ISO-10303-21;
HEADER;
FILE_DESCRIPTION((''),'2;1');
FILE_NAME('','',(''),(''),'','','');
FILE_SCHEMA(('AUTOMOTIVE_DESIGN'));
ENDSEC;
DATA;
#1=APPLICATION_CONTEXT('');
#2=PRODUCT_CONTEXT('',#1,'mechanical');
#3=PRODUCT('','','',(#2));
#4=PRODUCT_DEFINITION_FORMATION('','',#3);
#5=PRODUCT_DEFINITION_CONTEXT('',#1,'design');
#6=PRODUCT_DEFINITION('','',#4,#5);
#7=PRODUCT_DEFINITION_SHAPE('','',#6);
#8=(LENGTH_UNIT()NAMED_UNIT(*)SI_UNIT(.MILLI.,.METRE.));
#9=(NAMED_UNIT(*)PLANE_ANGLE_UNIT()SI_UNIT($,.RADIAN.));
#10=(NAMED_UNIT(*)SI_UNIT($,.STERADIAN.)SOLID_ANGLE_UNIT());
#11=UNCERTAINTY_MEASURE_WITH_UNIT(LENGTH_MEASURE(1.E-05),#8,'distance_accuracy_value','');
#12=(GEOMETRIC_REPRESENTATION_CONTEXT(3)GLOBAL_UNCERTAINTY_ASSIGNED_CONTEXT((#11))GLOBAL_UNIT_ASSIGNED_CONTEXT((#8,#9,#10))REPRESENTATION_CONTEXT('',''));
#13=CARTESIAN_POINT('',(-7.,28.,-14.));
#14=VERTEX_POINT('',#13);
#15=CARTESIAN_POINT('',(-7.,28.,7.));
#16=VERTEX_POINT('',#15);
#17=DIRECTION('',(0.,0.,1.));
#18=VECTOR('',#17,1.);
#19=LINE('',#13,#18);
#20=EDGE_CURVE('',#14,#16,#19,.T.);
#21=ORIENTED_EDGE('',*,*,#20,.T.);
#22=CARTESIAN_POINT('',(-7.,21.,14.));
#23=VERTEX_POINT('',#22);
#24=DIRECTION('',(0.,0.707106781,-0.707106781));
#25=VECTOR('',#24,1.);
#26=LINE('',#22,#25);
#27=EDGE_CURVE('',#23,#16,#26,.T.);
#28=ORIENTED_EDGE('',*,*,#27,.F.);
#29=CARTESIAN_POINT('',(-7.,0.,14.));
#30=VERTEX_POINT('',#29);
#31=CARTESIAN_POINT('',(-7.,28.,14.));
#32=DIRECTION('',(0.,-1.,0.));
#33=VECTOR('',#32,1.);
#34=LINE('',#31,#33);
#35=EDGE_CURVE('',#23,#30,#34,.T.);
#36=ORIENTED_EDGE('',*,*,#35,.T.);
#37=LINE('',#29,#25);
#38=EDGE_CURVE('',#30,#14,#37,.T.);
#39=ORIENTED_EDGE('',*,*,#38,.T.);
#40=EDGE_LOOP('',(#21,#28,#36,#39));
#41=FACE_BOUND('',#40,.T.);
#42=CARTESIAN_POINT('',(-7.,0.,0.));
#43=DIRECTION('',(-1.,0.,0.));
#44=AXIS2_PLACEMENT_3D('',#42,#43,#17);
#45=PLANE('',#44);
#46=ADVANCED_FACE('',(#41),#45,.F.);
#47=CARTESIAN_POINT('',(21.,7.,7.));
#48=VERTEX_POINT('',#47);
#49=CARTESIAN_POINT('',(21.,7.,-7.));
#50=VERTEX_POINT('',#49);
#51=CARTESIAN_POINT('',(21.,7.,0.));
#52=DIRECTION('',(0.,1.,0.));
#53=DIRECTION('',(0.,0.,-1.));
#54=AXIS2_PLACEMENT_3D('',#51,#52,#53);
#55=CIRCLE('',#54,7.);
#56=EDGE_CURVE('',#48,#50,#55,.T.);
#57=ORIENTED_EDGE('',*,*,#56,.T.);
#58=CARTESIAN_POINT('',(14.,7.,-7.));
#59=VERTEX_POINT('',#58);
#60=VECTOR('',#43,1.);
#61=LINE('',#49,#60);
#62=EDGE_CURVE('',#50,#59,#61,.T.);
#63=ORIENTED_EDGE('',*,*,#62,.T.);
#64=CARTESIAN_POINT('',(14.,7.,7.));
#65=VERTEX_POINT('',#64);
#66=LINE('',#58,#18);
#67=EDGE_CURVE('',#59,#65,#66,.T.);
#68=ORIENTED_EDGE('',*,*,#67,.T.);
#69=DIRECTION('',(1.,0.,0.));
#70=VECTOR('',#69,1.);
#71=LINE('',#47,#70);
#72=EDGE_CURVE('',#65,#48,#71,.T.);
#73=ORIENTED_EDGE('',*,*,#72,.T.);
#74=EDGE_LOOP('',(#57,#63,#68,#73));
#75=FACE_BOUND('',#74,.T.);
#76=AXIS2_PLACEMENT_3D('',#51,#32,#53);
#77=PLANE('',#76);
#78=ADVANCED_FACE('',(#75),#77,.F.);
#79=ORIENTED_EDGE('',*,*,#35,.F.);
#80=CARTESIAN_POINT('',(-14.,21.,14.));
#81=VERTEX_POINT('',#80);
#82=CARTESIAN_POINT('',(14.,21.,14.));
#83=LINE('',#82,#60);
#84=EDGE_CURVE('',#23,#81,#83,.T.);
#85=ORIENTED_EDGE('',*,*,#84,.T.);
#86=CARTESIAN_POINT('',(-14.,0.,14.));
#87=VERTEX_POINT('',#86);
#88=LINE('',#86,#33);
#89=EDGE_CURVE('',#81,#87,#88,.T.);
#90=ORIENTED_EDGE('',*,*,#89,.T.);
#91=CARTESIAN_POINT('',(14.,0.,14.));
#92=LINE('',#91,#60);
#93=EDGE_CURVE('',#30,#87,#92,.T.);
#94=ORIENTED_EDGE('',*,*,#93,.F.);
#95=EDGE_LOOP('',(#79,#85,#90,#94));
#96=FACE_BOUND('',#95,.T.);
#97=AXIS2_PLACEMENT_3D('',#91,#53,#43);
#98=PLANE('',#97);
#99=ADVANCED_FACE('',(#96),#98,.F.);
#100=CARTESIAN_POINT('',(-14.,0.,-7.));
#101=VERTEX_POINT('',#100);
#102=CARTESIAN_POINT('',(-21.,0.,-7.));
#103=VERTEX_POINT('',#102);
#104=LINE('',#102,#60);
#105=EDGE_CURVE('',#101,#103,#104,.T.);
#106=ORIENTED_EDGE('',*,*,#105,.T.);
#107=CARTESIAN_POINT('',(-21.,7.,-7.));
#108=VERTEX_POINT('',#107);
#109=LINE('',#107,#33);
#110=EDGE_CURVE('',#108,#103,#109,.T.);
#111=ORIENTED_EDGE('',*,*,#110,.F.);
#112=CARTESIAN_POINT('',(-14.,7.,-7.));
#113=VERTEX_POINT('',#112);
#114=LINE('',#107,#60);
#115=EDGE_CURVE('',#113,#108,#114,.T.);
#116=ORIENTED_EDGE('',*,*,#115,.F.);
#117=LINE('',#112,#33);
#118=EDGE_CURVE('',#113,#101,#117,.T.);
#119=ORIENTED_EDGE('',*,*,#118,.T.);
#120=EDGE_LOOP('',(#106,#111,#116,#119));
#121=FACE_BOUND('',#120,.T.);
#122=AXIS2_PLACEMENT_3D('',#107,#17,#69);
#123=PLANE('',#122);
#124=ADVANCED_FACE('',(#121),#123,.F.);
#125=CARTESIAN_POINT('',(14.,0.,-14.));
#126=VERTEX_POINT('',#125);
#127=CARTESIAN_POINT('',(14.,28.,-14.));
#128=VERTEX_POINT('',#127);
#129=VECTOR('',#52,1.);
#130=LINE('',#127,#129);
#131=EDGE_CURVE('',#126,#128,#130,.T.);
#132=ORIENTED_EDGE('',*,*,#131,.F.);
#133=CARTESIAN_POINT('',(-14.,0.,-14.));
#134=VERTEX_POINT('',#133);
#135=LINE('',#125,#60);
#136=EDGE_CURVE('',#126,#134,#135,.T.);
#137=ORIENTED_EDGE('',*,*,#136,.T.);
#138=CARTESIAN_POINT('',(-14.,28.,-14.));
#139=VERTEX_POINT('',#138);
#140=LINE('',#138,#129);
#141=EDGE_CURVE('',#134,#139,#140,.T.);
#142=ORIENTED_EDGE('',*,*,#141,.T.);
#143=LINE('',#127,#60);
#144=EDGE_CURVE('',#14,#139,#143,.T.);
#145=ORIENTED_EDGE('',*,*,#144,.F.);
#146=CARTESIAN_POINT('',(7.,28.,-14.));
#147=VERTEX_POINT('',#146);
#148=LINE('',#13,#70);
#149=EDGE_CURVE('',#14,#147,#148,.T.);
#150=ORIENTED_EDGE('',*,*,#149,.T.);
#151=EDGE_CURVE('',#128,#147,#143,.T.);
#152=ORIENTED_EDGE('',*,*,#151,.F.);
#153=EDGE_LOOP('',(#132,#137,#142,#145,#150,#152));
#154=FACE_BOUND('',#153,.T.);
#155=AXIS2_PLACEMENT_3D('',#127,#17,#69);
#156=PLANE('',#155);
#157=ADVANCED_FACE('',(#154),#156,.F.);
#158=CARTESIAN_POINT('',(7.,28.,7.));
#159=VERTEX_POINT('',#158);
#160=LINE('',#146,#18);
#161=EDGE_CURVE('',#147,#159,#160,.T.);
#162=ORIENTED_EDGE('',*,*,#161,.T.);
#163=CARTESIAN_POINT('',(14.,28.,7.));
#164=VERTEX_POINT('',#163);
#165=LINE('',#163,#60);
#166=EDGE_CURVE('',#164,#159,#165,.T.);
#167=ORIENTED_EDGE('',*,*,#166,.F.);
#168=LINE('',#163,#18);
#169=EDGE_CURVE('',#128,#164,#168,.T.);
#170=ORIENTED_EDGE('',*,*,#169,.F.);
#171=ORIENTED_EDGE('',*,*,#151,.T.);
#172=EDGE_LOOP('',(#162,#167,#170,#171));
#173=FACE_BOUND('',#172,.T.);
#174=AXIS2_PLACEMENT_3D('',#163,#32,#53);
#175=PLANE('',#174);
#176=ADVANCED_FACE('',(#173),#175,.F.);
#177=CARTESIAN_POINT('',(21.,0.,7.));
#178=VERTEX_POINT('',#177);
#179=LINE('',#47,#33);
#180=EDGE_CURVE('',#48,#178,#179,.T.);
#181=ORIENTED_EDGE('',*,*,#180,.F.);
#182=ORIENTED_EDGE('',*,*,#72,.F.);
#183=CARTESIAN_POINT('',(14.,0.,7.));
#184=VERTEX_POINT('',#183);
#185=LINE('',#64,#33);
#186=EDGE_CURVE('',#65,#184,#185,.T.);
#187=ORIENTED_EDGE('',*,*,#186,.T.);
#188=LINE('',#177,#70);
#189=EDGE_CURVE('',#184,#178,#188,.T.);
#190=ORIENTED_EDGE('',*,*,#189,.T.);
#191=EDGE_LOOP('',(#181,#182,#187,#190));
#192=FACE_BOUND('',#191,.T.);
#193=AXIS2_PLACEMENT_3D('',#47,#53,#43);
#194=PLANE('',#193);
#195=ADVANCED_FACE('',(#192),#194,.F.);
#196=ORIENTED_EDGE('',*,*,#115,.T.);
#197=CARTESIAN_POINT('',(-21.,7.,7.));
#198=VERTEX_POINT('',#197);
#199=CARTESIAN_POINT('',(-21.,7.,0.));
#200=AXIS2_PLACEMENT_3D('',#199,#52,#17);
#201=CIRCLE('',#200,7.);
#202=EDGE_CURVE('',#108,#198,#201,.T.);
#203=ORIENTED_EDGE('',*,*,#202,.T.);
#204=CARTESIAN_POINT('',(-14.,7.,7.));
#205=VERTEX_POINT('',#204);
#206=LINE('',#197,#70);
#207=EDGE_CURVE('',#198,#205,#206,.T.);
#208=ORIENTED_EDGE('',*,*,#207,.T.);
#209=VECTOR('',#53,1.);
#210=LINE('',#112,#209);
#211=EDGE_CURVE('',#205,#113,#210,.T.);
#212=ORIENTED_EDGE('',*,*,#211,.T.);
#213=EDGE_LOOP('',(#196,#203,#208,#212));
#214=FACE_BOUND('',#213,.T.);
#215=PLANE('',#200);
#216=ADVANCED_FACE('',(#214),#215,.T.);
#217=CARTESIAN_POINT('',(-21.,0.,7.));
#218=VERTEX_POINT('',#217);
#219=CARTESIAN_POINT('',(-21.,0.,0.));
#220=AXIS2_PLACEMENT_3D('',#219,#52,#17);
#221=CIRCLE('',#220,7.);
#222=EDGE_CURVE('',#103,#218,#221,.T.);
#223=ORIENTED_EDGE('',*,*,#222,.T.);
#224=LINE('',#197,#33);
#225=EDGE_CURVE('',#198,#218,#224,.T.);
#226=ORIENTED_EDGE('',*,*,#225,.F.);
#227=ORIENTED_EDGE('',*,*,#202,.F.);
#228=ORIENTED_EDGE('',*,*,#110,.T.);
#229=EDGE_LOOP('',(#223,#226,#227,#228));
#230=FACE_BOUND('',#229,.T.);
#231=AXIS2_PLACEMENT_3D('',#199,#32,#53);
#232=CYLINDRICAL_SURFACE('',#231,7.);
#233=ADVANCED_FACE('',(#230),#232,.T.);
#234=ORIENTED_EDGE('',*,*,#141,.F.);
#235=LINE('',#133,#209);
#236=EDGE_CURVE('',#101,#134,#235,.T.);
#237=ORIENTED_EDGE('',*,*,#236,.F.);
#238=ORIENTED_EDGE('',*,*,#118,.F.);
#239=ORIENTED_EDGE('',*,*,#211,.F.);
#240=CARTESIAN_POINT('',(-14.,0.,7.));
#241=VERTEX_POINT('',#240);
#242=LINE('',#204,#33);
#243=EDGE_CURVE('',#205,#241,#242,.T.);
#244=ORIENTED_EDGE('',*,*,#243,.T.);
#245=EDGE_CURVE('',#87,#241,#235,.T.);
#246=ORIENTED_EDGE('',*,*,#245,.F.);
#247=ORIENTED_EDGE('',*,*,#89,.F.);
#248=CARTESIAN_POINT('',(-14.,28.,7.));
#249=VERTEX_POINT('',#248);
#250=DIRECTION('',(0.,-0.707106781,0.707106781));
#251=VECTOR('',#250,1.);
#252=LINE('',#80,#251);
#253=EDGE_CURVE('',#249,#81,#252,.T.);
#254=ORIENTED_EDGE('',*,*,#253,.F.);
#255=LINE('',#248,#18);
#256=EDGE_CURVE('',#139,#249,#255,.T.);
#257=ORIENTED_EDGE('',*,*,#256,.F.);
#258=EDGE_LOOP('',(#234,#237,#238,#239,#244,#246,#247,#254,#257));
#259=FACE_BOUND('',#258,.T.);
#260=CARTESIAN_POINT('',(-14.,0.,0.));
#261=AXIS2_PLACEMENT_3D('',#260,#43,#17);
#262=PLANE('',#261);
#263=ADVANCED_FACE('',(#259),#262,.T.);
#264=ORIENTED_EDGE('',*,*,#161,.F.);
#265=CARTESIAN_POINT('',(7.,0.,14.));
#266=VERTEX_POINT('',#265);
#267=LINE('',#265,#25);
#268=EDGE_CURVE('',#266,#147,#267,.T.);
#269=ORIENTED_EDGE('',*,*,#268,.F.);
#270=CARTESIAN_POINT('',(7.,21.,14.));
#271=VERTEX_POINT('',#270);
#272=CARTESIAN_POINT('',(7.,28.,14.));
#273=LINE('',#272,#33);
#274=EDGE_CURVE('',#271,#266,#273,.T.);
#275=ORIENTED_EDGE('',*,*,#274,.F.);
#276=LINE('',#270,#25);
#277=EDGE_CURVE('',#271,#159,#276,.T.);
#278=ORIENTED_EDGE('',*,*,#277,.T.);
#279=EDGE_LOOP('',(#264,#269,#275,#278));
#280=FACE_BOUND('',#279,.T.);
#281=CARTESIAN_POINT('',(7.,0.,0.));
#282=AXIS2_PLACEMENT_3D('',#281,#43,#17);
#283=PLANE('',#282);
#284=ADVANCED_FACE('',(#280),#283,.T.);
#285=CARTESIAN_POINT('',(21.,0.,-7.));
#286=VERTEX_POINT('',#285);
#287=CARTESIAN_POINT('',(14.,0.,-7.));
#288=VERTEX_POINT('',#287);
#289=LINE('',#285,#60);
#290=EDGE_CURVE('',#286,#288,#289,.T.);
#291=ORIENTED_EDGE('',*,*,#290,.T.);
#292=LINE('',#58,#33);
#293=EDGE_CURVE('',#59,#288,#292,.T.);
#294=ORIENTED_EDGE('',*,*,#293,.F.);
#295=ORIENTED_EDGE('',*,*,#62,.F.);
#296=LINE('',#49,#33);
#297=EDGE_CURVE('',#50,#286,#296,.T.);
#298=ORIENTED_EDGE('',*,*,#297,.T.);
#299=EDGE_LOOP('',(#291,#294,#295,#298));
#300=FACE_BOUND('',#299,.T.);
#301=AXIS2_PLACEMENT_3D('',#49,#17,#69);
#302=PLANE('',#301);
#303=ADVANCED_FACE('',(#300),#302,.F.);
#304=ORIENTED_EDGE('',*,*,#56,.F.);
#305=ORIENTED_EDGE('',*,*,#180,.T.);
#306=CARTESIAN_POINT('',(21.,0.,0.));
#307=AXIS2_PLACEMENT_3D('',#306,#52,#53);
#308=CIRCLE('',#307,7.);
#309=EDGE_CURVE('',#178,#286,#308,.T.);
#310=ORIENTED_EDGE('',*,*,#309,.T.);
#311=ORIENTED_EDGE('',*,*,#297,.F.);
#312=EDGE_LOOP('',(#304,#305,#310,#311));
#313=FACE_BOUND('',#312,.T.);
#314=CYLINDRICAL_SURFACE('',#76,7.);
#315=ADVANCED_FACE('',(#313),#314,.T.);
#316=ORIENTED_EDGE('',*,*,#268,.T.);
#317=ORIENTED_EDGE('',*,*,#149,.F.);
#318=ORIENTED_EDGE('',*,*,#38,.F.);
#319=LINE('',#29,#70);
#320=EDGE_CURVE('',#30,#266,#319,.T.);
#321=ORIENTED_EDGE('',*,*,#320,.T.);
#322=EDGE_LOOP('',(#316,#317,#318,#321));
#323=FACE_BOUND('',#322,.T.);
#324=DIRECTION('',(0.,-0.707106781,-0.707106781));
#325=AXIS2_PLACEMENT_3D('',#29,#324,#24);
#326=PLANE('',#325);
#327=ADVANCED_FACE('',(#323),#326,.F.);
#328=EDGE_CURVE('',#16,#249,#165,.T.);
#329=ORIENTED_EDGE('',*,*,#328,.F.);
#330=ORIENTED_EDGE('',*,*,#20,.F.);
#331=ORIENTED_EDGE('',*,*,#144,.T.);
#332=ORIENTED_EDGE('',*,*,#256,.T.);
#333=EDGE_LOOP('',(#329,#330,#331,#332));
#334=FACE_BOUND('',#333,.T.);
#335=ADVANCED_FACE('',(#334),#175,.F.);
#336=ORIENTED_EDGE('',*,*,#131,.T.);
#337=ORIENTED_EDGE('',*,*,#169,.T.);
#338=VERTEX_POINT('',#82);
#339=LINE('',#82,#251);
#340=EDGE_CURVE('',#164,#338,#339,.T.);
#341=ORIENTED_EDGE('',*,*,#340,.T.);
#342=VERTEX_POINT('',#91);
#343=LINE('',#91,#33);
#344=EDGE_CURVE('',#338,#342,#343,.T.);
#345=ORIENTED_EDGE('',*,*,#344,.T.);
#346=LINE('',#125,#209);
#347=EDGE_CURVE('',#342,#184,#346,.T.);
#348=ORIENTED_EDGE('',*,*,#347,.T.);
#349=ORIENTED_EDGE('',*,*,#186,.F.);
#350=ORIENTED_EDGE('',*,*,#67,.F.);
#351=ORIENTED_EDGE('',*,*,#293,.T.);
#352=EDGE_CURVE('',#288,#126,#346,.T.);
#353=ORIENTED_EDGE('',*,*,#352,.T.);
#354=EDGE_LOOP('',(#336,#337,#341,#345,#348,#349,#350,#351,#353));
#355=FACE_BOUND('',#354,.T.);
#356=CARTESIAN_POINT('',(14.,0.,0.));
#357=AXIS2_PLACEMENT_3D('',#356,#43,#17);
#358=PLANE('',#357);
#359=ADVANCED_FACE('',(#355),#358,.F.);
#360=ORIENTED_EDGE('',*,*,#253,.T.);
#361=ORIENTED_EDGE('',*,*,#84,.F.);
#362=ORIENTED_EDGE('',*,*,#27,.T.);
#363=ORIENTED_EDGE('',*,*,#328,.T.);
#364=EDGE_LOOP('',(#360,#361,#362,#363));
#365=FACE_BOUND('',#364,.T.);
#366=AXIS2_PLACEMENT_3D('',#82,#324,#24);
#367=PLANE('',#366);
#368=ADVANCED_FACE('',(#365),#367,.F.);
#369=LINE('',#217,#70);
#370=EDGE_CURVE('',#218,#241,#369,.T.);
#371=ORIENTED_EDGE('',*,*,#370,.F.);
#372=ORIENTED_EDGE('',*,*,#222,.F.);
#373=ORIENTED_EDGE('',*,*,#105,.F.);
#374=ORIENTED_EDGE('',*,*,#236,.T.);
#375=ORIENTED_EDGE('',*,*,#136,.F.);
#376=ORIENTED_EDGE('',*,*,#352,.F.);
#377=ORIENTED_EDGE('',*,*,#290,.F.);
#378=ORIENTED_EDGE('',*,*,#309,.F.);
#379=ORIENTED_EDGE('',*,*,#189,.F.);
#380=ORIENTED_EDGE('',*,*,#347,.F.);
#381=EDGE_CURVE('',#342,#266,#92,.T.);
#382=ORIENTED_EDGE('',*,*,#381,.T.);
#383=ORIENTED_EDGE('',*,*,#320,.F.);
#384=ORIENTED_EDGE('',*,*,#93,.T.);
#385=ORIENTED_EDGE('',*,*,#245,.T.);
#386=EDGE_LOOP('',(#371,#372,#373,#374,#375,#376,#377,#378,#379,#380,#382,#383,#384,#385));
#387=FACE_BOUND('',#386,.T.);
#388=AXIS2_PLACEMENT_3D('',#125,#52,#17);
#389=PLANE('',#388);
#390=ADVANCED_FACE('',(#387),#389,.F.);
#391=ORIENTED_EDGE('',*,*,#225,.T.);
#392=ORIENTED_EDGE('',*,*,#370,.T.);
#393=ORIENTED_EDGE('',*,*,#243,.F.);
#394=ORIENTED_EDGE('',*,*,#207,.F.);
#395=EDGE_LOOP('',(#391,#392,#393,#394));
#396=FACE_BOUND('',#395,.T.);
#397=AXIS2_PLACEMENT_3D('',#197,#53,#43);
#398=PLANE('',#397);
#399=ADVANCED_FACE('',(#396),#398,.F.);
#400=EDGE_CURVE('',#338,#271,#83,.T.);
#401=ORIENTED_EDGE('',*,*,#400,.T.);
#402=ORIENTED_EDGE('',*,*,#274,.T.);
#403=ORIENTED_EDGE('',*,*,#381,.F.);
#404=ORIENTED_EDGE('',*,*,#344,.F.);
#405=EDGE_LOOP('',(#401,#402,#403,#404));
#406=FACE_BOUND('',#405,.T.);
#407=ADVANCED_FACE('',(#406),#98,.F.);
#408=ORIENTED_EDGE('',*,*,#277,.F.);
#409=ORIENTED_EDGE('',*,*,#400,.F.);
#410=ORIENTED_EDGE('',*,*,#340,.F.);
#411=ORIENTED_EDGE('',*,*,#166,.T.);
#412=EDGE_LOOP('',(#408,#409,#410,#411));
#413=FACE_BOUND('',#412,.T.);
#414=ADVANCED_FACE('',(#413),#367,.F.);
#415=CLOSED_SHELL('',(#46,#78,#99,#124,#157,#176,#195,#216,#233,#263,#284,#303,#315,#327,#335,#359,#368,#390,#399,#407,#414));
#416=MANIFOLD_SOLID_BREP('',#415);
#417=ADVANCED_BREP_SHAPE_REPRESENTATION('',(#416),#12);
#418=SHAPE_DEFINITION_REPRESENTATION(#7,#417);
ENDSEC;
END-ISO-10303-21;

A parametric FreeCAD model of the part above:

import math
import FreeCAD as App
import Part
import Sketcher

V = App.Vector
Q = App.Units.Quantity

doc = App.newDocument("Part")
params = doc.addObject("Spreadsheet::Sheet", "Params")
for row, (alias, value) in enumerate([
    ("sketch1_width", "28 mm"),
    ("sketch1_width2", "21 mm"),
    ("pad1_length", "28 mm"),
    ("sketch2_width", "28 mm"),
    ("pocket1_length", "14 mm"),
    ("sketch3_radius", "7 mm"),
    ("sketch3_width", "7 mm"),
    ("pad2_length", "7 mm"),
], start=1):
    params.set(f"A{row}", alias)
    params.set(f"B{row}", "=" + value)
    params.setAlias(f"B{row}", alias)

body = doc.addObject("PartDesign::Body", "Body")

sketch1 = body.newObject("Sketcher::SketchObject", "Sketch")
sketch1.AttachmentSupport = (doc.getObject("YZ_Plane"), [""])
sketch1.MapMode = "FlatFace"
sketch1.addGeometry([
    Part.LineSegment(V(0, 14, 0), V(0, -14, 0)),
    Part.LineSegment(V(0, -14, 0), V(28, -14, 0)),
    Part.LineSegment(V(28, -14, 0), V(28, 7, 0)),
    Part.LineSegment(V(28, 7, 0), V(21, 14, 0)),
    Part.LineSegment(V(21, 14, 0), V(0, 14, 0)),
], False)
sketch1.addConstraint([
    Sketcher.Constraint("Coincident", 0, 2, 1, 1),
    Sketcher.Constraint("Coincident", 1, 2, 2, 1),
    Sketcher.Constraint("Coincident", 2, 2, 3, 1),
    Sketcher.Constraint("Coincident", 3, 2, 4, 1),
    Sketcher.Constraint("Coincident", 4, 2, 0, 1),
    Sketcher.Constraint("Vertical", 0),
    Sketcher.Constraint("Horizontal", 1),
    Sketcher.Constraint("Vertical", 2),
    Sketcher.Constraint("Horizontal", 4),
    Sketcher.Constraint("Symmetric", 0, 2, 4, 2, -1, 1),
    Sketcher.Constraint("Equal", 1, 0),
    Sketcher.Constraint("Equal", 4, 2),
    Sketcher.Constraint("DistanceX", 1, 1, 1, 2, Q("28 mm")),
    Sketcher.Constraint("DistanceX", 4, 2, 4, 1, Q("21 mm")),
])
sketch1.setExpression("Constraints[12]", "Params.sketch1_width")
sketch1.setExpression("Constraints[13]", "Params.sketch1_width2")
pad1 = body.newObject("PartDesign::Pad", "Pad")
pad1.Profile = sketch1
pad1.setExpression("Length", "Params.pad1_length")
pad1.Midplane = True

sketch2 = body.newObject("Sketcher::SketchObject", "Sketch001")
sketch2.AttachmentSupport = (doc.getObject("YZ_Plane"), [""])
sketch2.MapMode = "FlatFace"
sketch2.addGeometry([
    Part.LineSegment(V(0, 14, 0), V(28, -14, 0)),
    Part.LineSegment(V(28, -14, 0), V(28, 14, 0)),
    Part.LineSegment(V(28, 14, 0), V(0, 14, 0)),
], False)
sketch2.addConstraint([
    Sketcher.Constraint("Coincident", 0, 2, 1, 1),
    Sketcher.Constraint("Coincident", 1, 2, 2, 1),
    Sketcher.Constraint("Coincident", 2, 2, 0, 1),
    Sketcher.Constraint("Vertical", 1),
    Sketcher.Constraint("Horizontal", 2),
    Sketcher.Constraint("PointOnObject", 2, 2, -2),
    Sketcher.Constraint("Equal", 2, 1),
    Sketcher.Constraint("DistanceX", 2, 2, 2, 1, Q("28 mm")),
    Sketcher.Constraint("DistanceY", 0, 2, -1, 1, Q("14 mm")),
])
sketch2.setExpression("Constraints[7]", "Params.sketch2_width")
pocket1 = body.newObject("PartDesign::Pocket", "Pocket")
pocket1.Profile = sketch2
pocket1.setExpression("Length", "Params.pocket1_length")
pocket1.Midplane = True

sketch3 = body.newObject("Sketcher::SketchObject", "Sketch002")
sketch3.AttachmentSupport = (doc.getObject("XZ_Plane"), [""])
sketch3.MapMode = "FlatFace"
sketch3.addGeometry([
    Part.LineSegment(V(-14, -7, 0), V(-21, -7, 0)),
    Part.ArcOfCircle(Part.Circle(V(-21, 0, 0), V(0, 0, 1), 7), math.radians(90), math.radians(270)),
    Part.LineSegment(V(-21, 7, 0), V(-14, 7, 0)),
    Part.LineSegment(V(-14, 7, 0), V(-14, -7, 0)),
    Part.LineSegment(V(14, -7, 0), V(14, 7, 0)),
    Part.LineSegment(V(14, 7, 0), V(21, 7, 0)),
    Part.ArcOfCircle(Part.Circle(V(21, 0, 0), V(0, 0, 1), 7), math.radians(-90), math.radians(90)),
    Part.LineSegment(V(21, -7, 0), V(14, -7, 0)),
], False)
sketch3.addConstraint([
    Sketcher.Constraint("Tangent", 0, 2, 1, 2),
    Sketcher.Constraint("Tangent", 1, 1, 2, 1),
    Sketcher.Constraint("Coincident", 2, 2, 3, 1),
    Sketcher.Constraint("Coincident", 3, 2, 0, 1),
    Sketcher.Constraint("Coincident", 4, 2, 5, 1),
    Sketcher.Constraint("Tangent", 5, 2, 6, 2),
    Sketcher.Constraint("Tangent", 6, 1, 7, 1),
    Sketcher.Constraint("Coincident", 7, 2, 4, 1),
    Sketcher.Constraint("Horizontal", 0),
    Sketcher.Constraint("Horizontal", 2),
    Sketcher.Constraint("Vertical", 3),
    Sketcher.Constraint("Vertical", 4),
    Sketcher.Constraint("Horizontal", 5),
    Sketcher.Constraint("Horizontal", 7),
    Sketcher.Constraint("Equal", 1, 6),
    Sketcher.Constraint("Symmetric", 1, 3, 6, 3, -1, 1),
    Sketcher.Constraint("Symmetric", 2, 2, 4, 2, -2),
    Sketcher.Constraint("Radius", 1, Q("7 mm")),
    Sketcher.Constraint("DistanceX", 0, 2, 0, 1, Q("7 mm")),
    Sketcher.Constraint("DistanceX", 1, 3, -1, 1, Q("21 mm")),
])
sketch3.setExpression("Constraints[17]", "Params.sketch3_radius")
sketch3.setExpression("Constraints[18]", "Params.sketch3_width")
pad2 = body.newObject("PartDesign::Pad", "Pad001")
pad2.Profile = sketch3
pad2.setExpression("Length", "Params.pad2_length")
pad2.Reversed = True

doc.recompute()
